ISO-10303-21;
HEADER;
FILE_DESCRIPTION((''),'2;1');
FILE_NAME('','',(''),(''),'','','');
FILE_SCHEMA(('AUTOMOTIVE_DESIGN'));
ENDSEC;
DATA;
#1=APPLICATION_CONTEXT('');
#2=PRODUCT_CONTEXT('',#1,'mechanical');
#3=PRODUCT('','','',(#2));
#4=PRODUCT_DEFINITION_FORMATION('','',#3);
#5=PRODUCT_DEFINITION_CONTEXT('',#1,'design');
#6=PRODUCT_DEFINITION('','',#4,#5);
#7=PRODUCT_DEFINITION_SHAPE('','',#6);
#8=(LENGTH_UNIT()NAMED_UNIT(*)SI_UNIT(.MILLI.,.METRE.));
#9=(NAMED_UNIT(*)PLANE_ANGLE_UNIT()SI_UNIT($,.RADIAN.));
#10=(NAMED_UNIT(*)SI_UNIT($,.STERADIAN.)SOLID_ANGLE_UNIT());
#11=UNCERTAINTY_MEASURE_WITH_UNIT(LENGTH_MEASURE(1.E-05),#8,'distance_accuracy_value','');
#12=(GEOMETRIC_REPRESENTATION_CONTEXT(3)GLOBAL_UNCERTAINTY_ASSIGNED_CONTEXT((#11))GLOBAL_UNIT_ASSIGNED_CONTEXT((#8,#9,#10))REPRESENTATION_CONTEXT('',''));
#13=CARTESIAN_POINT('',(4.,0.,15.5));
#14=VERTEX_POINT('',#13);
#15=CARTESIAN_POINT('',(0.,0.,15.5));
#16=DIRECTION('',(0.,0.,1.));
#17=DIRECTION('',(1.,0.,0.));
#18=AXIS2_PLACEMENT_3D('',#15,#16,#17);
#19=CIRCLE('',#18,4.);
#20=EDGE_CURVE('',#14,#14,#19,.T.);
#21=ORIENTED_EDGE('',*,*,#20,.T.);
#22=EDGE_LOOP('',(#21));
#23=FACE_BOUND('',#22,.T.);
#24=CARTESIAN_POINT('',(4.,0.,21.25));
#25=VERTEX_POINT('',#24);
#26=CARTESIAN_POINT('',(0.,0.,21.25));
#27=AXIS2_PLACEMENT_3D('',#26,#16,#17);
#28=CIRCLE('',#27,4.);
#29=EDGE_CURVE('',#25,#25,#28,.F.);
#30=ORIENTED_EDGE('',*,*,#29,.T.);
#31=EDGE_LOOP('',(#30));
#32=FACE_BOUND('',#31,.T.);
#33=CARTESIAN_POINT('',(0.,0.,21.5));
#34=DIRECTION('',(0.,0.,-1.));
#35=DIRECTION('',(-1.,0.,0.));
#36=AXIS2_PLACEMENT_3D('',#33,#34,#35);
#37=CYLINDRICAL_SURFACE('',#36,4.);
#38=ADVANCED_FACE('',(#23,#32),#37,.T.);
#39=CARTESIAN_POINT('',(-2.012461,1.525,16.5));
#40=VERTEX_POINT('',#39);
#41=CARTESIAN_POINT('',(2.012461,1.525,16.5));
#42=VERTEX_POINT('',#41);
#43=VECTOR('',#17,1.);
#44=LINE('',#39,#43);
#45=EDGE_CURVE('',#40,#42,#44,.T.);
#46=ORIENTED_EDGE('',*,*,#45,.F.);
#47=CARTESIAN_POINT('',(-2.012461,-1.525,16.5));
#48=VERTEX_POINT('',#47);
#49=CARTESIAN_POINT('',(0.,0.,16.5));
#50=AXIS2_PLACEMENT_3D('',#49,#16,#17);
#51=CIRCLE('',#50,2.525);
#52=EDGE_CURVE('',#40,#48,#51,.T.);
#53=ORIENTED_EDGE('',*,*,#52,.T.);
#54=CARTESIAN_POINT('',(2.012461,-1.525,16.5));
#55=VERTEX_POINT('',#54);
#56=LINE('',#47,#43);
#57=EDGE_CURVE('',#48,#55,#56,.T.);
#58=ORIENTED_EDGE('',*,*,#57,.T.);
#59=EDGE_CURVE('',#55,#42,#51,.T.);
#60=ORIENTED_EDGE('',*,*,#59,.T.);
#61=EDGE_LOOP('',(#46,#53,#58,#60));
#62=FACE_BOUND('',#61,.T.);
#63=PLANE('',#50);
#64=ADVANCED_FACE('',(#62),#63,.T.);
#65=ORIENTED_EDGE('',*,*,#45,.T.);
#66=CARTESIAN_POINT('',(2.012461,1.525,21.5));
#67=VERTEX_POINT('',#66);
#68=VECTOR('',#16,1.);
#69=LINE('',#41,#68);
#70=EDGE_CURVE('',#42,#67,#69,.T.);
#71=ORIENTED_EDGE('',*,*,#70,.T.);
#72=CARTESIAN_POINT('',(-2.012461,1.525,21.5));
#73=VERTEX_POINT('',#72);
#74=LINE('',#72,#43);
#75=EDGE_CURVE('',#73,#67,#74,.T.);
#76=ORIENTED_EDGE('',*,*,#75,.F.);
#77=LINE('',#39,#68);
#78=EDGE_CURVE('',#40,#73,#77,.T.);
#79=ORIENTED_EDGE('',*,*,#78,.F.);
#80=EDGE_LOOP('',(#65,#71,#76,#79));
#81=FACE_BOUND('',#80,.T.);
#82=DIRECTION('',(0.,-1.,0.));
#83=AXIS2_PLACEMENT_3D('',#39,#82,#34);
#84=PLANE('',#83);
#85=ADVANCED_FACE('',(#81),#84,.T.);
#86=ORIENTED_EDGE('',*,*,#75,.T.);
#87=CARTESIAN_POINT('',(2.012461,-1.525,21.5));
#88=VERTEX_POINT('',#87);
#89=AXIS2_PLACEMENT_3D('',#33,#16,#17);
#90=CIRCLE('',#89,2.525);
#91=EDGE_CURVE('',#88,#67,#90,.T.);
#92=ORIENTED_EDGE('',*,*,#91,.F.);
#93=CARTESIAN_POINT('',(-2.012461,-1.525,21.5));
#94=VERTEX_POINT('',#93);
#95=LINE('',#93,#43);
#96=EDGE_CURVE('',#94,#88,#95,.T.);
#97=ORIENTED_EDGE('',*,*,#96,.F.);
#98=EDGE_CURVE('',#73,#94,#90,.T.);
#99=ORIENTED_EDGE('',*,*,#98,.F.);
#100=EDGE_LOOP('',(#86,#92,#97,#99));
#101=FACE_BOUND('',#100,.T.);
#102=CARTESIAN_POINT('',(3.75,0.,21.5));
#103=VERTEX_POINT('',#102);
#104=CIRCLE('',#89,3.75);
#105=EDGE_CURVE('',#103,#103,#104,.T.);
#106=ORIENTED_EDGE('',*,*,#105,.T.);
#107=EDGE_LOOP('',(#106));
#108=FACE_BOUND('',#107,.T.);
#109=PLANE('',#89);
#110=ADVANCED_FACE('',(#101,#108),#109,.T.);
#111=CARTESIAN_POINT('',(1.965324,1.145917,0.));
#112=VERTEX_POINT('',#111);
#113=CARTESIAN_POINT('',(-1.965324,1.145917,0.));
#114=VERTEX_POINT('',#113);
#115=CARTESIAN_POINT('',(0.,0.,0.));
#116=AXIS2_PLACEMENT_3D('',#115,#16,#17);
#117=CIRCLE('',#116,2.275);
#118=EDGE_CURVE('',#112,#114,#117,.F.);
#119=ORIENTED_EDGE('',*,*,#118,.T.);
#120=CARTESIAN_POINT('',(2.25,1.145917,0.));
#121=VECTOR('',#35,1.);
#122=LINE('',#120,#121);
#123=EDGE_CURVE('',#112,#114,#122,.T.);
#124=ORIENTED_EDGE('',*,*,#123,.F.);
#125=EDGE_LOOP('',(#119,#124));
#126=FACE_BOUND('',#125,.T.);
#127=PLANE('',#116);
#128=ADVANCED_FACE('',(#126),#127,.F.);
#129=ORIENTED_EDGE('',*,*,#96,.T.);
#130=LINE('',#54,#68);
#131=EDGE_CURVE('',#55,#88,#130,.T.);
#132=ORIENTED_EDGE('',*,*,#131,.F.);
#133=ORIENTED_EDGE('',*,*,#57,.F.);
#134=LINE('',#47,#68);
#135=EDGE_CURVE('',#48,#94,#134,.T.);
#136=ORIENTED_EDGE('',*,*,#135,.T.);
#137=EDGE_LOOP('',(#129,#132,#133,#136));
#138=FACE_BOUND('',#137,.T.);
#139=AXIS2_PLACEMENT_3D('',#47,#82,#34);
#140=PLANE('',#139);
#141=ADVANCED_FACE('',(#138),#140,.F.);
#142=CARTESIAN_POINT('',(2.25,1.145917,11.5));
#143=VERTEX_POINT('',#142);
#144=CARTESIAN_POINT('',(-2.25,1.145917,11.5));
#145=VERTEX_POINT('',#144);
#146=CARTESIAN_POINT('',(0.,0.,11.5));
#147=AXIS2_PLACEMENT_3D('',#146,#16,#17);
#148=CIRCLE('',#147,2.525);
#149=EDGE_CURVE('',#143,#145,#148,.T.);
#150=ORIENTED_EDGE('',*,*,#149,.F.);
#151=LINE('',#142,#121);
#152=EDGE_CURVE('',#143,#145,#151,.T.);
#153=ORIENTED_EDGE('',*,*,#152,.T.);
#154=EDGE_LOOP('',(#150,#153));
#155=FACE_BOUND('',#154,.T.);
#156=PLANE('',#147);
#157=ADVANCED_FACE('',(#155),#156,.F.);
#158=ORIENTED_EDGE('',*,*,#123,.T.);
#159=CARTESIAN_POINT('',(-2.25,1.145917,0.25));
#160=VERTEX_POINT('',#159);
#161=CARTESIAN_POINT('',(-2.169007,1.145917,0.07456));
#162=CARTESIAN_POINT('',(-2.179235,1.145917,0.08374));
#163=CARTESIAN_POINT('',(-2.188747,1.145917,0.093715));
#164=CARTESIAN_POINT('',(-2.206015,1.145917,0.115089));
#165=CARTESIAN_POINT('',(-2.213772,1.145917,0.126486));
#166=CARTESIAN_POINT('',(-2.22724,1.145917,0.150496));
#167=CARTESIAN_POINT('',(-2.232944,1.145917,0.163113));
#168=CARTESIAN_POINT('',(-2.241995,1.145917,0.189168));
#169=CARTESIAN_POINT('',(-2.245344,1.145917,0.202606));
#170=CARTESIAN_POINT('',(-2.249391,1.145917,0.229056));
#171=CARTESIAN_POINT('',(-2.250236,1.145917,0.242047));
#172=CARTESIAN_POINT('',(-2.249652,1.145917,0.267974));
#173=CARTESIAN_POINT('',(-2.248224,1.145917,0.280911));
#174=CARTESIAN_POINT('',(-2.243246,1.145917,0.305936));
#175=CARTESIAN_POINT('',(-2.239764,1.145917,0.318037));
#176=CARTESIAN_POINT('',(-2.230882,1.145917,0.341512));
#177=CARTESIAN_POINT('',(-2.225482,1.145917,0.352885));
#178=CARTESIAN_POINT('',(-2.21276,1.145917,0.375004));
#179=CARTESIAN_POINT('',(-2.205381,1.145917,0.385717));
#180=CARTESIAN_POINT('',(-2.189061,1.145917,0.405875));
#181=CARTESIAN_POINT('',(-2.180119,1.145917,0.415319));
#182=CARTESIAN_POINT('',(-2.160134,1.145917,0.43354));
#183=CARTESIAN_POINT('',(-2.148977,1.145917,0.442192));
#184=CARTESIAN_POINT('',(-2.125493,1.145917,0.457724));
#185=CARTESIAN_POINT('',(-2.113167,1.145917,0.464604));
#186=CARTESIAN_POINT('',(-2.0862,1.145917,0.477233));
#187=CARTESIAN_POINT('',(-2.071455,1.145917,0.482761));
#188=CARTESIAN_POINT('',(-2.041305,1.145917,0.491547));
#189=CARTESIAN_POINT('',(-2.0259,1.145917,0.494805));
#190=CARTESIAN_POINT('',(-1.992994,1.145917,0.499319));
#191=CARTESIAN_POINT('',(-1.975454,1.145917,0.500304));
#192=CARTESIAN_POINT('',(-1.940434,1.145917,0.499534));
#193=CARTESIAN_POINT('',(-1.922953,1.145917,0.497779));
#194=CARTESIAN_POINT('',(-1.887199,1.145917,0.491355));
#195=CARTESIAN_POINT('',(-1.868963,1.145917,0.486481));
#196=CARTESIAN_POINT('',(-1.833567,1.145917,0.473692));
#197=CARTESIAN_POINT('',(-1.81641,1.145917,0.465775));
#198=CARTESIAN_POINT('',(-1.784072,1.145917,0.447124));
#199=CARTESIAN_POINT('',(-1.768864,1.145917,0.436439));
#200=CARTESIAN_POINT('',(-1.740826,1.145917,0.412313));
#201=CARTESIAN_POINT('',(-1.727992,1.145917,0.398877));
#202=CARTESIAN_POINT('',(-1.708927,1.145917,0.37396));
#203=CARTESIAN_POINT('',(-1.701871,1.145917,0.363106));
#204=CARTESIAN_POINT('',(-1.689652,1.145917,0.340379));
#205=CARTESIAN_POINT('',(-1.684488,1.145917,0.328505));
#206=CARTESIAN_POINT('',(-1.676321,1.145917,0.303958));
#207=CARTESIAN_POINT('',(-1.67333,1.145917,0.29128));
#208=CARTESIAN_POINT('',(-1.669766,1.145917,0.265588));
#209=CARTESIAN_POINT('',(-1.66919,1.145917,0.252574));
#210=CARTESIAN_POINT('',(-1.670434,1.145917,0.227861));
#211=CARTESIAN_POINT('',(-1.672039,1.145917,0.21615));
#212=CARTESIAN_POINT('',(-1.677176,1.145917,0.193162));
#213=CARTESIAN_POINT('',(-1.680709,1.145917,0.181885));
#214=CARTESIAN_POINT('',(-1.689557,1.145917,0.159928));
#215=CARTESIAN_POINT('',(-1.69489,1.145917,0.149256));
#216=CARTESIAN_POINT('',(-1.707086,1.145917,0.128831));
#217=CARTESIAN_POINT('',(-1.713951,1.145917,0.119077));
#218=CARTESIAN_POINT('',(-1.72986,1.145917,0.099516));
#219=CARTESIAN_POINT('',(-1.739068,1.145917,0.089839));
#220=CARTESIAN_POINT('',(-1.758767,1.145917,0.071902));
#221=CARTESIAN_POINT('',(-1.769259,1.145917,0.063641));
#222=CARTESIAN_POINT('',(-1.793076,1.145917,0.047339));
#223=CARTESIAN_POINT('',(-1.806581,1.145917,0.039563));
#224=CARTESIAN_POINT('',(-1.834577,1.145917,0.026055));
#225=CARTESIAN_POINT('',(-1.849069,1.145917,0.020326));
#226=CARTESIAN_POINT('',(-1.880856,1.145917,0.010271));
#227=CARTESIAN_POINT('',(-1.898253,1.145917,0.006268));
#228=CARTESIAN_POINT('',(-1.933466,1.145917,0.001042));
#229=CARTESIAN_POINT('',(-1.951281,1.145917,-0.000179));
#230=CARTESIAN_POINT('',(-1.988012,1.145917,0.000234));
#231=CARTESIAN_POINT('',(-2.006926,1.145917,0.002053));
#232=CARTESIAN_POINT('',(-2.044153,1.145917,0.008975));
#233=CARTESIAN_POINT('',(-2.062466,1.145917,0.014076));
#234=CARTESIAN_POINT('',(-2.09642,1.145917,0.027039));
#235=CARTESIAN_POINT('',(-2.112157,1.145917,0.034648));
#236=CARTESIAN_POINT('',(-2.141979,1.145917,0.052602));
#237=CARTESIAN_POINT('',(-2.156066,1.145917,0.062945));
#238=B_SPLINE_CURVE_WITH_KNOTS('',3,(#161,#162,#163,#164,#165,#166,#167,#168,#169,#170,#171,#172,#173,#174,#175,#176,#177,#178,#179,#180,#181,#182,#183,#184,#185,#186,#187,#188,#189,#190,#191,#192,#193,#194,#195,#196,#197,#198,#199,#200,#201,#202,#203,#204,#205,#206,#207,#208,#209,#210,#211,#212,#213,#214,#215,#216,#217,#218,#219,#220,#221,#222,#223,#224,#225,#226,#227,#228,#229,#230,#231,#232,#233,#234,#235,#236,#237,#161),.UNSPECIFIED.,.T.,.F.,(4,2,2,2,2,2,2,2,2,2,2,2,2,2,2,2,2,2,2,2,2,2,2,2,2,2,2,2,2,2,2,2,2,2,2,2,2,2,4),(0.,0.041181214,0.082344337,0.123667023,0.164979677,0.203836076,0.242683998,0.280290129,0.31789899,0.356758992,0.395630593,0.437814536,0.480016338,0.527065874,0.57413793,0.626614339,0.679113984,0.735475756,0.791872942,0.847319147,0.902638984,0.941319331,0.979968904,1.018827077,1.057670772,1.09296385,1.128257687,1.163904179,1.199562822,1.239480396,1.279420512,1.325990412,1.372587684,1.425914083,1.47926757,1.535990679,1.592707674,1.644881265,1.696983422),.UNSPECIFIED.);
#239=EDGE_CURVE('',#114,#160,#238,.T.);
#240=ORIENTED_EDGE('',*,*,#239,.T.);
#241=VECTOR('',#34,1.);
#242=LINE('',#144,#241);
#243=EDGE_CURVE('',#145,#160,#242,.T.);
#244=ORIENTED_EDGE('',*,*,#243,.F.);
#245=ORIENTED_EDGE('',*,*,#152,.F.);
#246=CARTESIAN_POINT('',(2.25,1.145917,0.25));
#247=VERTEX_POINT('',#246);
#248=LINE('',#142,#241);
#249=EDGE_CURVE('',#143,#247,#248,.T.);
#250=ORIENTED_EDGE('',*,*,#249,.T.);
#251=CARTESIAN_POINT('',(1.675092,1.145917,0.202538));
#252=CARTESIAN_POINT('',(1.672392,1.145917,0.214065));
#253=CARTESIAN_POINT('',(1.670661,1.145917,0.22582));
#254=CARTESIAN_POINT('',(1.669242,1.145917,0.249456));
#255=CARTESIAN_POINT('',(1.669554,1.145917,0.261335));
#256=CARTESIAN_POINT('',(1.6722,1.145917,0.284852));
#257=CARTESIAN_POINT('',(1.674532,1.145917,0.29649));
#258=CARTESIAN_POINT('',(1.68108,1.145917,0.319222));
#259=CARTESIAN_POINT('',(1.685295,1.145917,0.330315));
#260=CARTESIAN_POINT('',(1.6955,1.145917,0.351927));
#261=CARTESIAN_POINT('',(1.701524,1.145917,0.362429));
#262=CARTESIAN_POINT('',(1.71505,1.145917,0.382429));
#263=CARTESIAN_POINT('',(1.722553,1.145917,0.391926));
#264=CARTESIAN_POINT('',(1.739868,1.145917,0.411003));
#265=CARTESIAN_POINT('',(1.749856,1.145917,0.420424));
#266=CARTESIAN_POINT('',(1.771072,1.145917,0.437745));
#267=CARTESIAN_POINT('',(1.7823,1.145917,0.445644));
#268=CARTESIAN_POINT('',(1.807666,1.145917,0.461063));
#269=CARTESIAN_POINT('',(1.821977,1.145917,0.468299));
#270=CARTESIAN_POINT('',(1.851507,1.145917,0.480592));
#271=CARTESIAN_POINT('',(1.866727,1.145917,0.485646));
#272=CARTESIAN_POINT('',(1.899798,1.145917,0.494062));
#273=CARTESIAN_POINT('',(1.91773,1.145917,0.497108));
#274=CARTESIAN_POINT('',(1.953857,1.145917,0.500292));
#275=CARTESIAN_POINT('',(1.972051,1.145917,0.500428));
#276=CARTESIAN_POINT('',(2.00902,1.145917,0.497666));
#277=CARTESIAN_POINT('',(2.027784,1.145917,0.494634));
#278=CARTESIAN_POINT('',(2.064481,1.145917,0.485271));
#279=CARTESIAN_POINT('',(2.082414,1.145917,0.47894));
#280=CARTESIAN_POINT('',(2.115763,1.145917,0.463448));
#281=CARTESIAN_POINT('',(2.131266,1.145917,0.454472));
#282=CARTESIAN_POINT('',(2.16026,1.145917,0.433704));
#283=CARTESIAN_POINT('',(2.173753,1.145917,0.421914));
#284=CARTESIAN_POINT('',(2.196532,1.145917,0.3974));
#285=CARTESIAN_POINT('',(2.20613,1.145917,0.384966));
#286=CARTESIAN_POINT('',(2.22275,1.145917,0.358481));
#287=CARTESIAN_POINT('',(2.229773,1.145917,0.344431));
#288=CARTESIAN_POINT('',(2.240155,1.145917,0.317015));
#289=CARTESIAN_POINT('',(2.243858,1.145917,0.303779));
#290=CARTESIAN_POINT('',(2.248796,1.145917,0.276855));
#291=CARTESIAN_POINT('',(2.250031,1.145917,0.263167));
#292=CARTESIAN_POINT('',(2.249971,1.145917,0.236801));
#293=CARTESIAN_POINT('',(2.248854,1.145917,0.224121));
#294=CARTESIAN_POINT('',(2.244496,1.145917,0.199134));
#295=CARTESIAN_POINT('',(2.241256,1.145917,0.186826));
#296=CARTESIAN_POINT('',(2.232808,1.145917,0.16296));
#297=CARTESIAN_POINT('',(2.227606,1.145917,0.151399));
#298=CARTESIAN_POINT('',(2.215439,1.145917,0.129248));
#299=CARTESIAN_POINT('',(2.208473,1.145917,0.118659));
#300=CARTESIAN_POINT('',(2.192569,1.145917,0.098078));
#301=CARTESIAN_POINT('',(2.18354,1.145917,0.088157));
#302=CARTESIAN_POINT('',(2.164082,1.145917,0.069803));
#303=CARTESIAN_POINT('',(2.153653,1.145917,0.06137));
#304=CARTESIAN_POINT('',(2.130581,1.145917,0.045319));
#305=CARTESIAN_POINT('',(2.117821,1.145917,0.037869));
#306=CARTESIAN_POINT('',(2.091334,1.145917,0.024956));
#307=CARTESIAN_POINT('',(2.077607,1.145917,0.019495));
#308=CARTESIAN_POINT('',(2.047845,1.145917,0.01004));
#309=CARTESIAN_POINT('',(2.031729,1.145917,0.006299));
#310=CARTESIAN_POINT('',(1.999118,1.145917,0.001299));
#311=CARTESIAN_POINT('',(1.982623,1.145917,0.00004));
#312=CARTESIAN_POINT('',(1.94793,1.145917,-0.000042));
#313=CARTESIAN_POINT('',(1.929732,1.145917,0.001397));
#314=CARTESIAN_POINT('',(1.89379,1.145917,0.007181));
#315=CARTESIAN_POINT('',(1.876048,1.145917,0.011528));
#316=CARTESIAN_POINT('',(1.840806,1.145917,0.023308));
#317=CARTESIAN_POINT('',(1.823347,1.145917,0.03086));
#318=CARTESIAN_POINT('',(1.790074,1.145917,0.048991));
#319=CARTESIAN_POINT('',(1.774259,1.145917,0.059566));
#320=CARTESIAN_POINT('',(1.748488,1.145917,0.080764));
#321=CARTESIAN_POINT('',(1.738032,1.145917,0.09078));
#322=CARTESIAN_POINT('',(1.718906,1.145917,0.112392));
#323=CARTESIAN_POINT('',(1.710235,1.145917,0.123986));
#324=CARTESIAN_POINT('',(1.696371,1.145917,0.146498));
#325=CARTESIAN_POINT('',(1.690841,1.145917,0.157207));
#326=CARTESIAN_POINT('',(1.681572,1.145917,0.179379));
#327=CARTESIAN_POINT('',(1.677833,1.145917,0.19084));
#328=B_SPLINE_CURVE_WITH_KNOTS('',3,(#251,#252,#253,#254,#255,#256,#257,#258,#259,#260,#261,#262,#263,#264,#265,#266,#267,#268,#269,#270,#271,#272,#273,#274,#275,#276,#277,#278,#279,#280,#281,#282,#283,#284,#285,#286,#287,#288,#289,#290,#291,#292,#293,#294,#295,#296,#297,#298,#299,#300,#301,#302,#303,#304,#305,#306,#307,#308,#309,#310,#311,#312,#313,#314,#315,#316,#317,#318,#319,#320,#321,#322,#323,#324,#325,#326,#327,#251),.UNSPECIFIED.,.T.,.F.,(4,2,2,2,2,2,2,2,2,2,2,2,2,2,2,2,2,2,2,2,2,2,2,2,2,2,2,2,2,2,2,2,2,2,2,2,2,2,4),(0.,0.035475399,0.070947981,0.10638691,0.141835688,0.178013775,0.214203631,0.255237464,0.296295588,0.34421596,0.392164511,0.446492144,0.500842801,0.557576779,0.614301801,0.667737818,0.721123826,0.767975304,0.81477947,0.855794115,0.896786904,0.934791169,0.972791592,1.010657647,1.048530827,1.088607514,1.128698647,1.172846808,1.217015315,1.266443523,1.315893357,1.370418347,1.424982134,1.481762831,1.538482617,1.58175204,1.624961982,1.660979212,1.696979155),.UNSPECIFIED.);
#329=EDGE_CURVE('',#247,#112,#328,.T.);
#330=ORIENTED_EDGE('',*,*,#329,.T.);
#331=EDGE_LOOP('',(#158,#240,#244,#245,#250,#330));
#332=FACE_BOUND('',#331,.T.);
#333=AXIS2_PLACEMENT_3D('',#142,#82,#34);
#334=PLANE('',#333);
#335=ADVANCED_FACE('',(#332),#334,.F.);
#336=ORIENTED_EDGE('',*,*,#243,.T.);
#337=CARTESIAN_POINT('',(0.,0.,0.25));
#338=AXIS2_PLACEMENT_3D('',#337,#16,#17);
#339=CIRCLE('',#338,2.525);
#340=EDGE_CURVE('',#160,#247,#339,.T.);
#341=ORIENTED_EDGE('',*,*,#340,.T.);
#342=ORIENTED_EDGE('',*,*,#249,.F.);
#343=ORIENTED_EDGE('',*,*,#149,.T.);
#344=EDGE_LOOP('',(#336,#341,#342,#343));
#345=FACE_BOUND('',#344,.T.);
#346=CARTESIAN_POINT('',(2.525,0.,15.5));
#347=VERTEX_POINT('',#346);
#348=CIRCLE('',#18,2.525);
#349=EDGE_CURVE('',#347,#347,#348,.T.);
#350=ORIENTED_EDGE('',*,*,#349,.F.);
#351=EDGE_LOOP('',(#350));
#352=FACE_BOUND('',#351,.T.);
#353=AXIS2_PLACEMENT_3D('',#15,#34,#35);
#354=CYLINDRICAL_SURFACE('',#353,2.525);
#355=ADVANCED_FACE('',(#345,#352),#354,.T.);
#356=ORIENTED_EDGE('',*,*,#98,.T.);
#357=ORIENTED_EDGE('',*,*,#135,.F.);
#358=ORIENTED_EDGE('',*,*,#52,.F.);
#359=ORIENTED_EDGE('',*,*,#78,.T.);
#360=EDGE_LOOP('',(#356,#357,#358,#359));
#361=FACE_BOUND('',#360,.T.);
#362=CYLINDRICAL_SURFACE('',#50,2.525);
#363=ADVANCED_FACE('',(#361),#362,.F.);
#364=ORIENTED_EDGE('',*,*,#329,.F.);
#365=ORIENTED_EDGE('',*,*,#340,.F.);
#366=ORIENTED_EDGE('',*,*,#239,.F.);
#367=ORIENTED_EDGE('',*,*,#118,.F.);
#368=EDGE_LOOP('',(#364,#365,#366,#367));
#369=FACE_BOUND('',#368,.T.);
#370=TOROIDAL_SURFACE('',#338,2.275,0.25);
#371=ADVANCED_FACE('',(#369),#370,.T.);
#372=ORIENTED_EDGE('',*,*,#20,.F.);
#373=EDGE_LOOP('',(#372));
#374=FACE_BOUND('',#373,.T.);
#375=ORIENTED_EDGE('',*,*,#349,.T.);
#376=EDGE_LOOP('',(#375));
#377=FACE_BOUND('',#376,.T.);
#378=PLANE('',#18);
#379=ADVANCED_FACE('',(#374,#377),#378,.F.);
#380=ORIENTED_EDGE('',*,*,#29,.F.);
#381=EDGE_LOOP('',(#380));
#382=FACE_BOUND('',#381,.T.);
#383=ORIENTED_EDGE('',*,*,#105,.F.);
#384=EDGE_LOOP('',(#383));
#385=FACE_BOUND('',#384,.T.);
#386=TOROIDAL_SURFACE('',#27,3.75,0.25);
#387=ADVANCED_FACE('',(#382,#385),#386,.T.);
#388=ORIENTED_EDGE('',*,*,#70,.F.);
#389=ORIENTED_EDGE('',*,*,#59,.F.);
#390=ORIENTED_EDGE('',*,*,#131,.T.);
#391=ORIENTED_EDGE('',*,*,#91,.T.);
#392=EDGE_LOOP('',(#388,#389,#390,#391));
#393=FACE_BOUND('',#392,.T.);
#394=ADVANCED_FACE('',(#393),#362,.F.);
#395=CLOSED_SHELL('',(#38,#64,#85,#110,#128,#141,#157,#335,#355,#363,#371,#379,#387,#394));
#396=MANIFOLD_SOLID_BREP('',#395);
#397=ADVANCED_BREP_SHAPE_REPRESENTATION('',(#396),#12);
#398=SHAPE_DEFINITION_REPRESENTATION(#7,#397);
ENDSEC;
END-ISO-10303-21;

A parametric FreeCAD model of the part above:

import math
import FreeCAD as App
import Part
import Sketcher
from FreeCAD import Vector
Q = App.Units.Quantity


def edges_at(feature, points):
    """Names of the edges that pass closest to the given points."""
    edges = feature.Shape.Edges
    near = lambda p: min(range(len(edges)), key=lambda i: edges[i].distToShape(Part.Vertex(*p))[0])
    return sorted({f"Edge{near(p) + 1}" for p in points})

doc = App.newDocument("Part")
body = doc.addObject("PartDesign::Body", "Body")

# Sketch on XY plane
sketch1 = body.newObject("Sketcher::SketchObject", "Sketch")
sketch1.AttachmentSupport = (doc.getObject("XY_Plane"), [""])
sketch1.MapMode = "FlatFace"
sketch1.addGeometry(Part.Circle(Vector(0, 0, 0), Vector(0, 0, 1), 2.5), False)
sketch1.addConstraint([
    Sketcher.Constraint("Coincident", 0, 3, -1, 1),
    Sketcher.Constraint("Diameter", 0, Q("5.05 mm")),
])
pad1 = body.newObject("PartDesign::Pad", "Pad")
pad1.Profile = sketch1
pad1.Length = 15.5

# Sketch on XY plane
sketch2 = body.newObject("Sketcher::SketchObject", "Sketch001")
sketch2.AttachmentSupport = (doc.getObject("XY_Plane"), [""])
sketch2.MapMode = "FlatFace"
sketch2.AttachmentOffset = App.Placement(Vector(0, 0, 15.5), App.Rotation())
sketch2.addGeometry(Part.Circle(Vector(0, 0, 0), Vector(0, 0, 1), 4), False)
sketch2.addConstraint([
    Sketcher.Constraint("Coincident", 0, 3, -1, 1),
    Sketcher.Constraint("Diameter", 0, Q("8 mm")),
])
pad2 = body.newObject("PartDesign::Pad", "Pad001")
pad2.Profile = sketch2
pad2.Length = 6

# Sketch on XY plane
sketch3 = body.newObject("Sketcher::SketchObject", "Sketch002")
sketch3.AttachmentSupport = (doc.getObject("XY_Plane"), [""])
sketch3.MapMode = "FlatFace"
sketch3.AttachmentOffset = App.Placement(Vector(0, 0, 16.5), App.Rotation())
sketch3.addGeometry([
    Part.LineSegment(Vector(2, 1.5, 0), Vector(-2, 1.5, 0)),
    Part.ArcOfCircle(Part.Circle(Vector(0, 0, 0), Vector(0, 0, 1), 2.5), math.radians(143), math.radians(217)),
    Part.LineSegment(Vector(-2, -1.5, 0), Vector(2, -1.5, 0)),
    Part.ArcOfCircle(Part.Circle(Vector(0, 0, 0), Vector(0, 0, 1), 2.5), math.radians(-37), math.radians(37)),
], False)
sketch3.addConstraint([
    Sketcher.Constraint("Coincident", 0, 2, 1, 1),
    Sketcher.Constraint("Coincident", 1, 2, 2, 1),
    Sketcher.Constraint("Coincident", 2, 2, 3, 1),
    Sketcher.Constraint("Coincident", 3, 2, 0, 1),
    Sketcher.Constraint("Horizontal", 0),
    Sketcher.Constraint("Horizontal", 2),
    Sketcher.Constraint("Coincident", 1, 3, -1, 1),
    Sketcher.Constraint("Coincident", 3, 3, -1, 1),
    Sketcher.Constraint("Equal", 1, 3),
    Sketcher.Constraint("Vertical", 0, 2, 1, 2),
    Sketcher.Constraint("Radius", 1, Q("2.525 mm")),
    Sketcher.Constraint("DistanceY", 1, 2, 0, 2, Q("3.05 mm")),
])
pocket1 = body.newObject("PartDesign::Pocket", "Pocket")
pocket1.Profile = sketch3
pocket1.Length = 5
pocket1.Reversed = True
doc.recompute()

fillet = body.newObject("PartDesign::Fillet", "Fillet")
fillet.Base = (pocket1, edges_at(pocket1, [(-4, 0, 21.5)]))
fillet.Radius = 0.25
doc.recompute()

fillet2 = body.newObject("PartDesign::Fillet", "Fillet001")
fillet2.Base = (fillet, edges_at(fillet, [(-2.525, 0, 0)]))
fillet2.Radius = 0.25

# Sketch on XY plane
sketch4 = body.newObject("Sketcher::SketchObject", "Sketch003")
sketch4.AttachmentSupport = (doc.getObject("XY_Plane"), [""])
sketch4.MapMode = "FlatFace"
sketch4.addGeometry([
    Part.LineSegment(Vector(2.2, 1.1, 0), Vector(-2.2, 1.1, 0)),
    Part.ArcOfCircle(Part.Circle(Vector(0, 0, 0), Vector(0, 0, 1), 2.5), math.radians(27), math.radians(153)),
], False)
sketch4.addConstraint([
    Sketcher.Constraint("Coincident", 0, 1, 1, 1),
    Sketcher.Constraint("Coincident", 1, 2, 0, 2),
    Sketcher.Constraint("Horizontal", 0),
    Sketcher.Constraint("Coincident", 1, 3, -1, 1),
    Sketcher.Constraint("DistanceX", 0, 2, 0, 1, Q("4.5 mm")),
    Sketcher.Constraint("Radius", 1, Q("2.525 mm")),
])
pocket2 = body.newObject("PartDesign::Pocket", "Pocket001")
pocket2.Profile = sketch4
pocket2.Length = 11.5
pocket2.Reversed = True

doc.recompute()
